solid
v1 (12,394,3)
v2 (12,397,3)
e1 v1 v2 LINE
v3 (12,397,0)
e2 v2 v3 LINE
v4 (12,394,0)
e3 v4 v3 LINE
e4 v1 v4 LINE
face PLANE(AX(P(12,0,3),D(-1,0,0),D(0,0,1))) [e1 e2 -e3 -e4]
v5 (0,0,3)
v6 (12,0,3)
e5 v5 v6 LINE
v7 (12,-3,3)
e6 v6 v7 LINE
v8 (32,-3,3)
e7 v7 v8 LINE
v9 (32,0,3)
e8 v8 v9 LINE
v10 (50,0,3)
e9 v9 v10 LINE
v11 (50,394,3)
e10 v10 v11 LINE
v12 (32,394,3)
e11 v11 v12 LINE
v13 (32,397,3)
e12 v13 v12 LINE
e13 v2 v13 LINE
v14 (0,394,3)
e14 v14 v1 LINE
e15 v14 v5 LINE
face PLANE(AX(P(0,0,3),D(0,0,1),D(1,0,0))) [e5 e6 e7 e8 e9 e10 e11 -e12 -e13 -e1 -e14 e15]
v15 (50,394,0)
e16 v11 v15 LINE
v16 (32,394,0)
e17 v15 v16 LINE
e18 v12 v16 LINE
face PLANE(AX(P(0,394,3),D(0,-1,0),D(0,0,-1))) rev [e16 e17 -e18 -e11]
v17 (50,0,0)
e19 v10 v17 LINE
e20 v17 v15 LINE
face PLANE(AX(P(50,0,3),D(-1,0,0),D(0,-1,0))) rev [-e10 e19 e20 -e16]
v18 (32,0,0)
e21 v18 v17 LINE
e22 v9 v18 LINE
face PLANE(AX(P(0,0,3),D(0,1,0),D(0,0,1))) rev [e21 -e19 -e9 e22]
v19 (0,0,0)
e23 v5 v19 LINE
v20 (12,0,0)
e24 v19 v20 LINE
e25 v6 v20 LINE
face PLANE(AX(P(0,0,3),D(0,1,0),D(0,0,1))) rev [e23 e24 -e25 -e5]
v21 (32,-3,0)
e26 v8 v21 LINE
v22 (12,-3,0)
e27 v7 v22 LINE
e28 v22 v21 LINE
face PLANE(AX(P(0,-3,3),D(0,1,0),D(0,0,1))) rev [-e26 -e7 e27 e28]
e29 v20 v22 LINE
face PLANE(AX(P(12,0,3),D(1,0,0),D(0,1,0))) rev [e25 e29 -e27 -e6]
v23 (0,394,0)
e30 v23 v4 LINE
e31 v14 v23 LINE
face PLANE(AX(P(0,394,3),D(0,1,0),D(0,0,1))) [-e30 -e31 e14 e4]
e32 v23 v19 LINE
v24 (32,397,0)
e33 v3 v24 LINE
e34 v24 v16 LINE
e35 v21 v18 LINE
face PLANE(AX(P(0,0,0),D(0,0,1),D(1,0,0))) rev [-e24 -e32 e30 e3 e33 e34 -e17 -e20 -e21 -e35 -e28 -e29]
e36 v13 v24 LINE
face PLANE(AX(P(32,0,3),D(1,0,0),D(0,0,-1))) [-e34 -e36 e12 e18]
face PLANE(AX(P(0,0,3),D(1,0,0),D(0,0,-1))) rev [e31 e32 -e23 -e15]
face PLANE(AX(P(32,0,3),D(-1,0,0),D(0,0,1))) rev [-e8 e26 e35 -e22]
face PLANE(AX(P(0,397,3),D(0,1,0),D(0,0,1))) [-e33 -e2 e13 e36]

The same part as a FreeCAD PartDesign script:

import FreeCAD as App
import Part
import Sketcher

V = App.Vector


def add_polygon(sketch, points):
    """Adds a closed chain of lines whose ends are joined by coincident constraints."""
    first, n = sketch.GeometryCount, len(points)
    for a, b in zip(points, points[1:] + points[:1]):
        sketch.addGeometry(Part.LineSegment(App.Vector(*a, 0), App.Vector(*b, 0)), False)
    for i in range(n):
        sketch.addConstraint(Sketcher.Constraint("Coincident", first + i, 2, first + (i + 1) % n, 1))

doc = App.newDocument("Part")
body = doc.addObject("PartDesign::Body", "Body")

# Sketch on XY plane
sketch1 = body.newObject("Sketcher::SketchObject", "Sketch")
sketch1.AttachmentSupport = (doc.getObject("XY_Plane"), [""])
sketch1.MapMode = "FlatFace"
add_polygon(sketch1, [(32, -3), (32, 0), (50, 0), (50, 394), (32, 394), (32, 397), (12, 397), (12, 394), (0, 394), (0, 0), (12, 0), (12, -3)])  # lines 0-11
sketch1.addConstraint([
    Sketcher.Constraint("Vertical", 0),
    Sketcher.Constraint("Horizontal", 1),
    Sketcher.Constraint("Vertical", 2),
    Sketcher.Constraint("Horizontal", 3),
    Sketcher.Constraint("Vertical", 4),
    Sketcher.Constraint("Horizontal", 5),
    Sketcher.Constraint("Vertical", 6),
    Sketcher.Constraint("Horizontal", 7),
    Sketcher.Constraint("Vertical", 8),
    Sketcher.Constraint("Horizontal", 9),
    Sketcher.Constraint("Vertical", 10),
    Sketcher.Constraint("Horizontal", 11),
    Sketcher.Constraint("Coincident", 8, 2, -1, 1),
    Sketcher.Constraint("PointOnObject", 0, 2, -1),
    Sketcher.Constraint("Horizontal", 3, 2, 6, 2),
    Sketcher.Constraint("Vertical", 0, 2, 3, 2),
    Sketcher.Constraint("Vertical", 6, 2, 9, 2),
    Sketcher.Constraint("Equal", 0, 4),
    Sketcher.Constraint("DistanceX", 1, 1, 1, 2, 18.0),
    Sketcher.Constraint("DistanceX", 5, 2, 5, 1, 20.0),
    Sketcher.Constraint("DistanceX", 7, 2, 7, 1, 12.0),
    Sketcher.Constraint("DistanceY", 0, 1, 0, 2, 3.0),
    Sketcher.Constraint("DistanceY", 2, 1, 2, 2, 394.0),
])
pad1 = body.newObject("PartDesign::Pad", "Pad")
pad1.Profile = sketch1
pad1.Length = 3

doc.recompute()
